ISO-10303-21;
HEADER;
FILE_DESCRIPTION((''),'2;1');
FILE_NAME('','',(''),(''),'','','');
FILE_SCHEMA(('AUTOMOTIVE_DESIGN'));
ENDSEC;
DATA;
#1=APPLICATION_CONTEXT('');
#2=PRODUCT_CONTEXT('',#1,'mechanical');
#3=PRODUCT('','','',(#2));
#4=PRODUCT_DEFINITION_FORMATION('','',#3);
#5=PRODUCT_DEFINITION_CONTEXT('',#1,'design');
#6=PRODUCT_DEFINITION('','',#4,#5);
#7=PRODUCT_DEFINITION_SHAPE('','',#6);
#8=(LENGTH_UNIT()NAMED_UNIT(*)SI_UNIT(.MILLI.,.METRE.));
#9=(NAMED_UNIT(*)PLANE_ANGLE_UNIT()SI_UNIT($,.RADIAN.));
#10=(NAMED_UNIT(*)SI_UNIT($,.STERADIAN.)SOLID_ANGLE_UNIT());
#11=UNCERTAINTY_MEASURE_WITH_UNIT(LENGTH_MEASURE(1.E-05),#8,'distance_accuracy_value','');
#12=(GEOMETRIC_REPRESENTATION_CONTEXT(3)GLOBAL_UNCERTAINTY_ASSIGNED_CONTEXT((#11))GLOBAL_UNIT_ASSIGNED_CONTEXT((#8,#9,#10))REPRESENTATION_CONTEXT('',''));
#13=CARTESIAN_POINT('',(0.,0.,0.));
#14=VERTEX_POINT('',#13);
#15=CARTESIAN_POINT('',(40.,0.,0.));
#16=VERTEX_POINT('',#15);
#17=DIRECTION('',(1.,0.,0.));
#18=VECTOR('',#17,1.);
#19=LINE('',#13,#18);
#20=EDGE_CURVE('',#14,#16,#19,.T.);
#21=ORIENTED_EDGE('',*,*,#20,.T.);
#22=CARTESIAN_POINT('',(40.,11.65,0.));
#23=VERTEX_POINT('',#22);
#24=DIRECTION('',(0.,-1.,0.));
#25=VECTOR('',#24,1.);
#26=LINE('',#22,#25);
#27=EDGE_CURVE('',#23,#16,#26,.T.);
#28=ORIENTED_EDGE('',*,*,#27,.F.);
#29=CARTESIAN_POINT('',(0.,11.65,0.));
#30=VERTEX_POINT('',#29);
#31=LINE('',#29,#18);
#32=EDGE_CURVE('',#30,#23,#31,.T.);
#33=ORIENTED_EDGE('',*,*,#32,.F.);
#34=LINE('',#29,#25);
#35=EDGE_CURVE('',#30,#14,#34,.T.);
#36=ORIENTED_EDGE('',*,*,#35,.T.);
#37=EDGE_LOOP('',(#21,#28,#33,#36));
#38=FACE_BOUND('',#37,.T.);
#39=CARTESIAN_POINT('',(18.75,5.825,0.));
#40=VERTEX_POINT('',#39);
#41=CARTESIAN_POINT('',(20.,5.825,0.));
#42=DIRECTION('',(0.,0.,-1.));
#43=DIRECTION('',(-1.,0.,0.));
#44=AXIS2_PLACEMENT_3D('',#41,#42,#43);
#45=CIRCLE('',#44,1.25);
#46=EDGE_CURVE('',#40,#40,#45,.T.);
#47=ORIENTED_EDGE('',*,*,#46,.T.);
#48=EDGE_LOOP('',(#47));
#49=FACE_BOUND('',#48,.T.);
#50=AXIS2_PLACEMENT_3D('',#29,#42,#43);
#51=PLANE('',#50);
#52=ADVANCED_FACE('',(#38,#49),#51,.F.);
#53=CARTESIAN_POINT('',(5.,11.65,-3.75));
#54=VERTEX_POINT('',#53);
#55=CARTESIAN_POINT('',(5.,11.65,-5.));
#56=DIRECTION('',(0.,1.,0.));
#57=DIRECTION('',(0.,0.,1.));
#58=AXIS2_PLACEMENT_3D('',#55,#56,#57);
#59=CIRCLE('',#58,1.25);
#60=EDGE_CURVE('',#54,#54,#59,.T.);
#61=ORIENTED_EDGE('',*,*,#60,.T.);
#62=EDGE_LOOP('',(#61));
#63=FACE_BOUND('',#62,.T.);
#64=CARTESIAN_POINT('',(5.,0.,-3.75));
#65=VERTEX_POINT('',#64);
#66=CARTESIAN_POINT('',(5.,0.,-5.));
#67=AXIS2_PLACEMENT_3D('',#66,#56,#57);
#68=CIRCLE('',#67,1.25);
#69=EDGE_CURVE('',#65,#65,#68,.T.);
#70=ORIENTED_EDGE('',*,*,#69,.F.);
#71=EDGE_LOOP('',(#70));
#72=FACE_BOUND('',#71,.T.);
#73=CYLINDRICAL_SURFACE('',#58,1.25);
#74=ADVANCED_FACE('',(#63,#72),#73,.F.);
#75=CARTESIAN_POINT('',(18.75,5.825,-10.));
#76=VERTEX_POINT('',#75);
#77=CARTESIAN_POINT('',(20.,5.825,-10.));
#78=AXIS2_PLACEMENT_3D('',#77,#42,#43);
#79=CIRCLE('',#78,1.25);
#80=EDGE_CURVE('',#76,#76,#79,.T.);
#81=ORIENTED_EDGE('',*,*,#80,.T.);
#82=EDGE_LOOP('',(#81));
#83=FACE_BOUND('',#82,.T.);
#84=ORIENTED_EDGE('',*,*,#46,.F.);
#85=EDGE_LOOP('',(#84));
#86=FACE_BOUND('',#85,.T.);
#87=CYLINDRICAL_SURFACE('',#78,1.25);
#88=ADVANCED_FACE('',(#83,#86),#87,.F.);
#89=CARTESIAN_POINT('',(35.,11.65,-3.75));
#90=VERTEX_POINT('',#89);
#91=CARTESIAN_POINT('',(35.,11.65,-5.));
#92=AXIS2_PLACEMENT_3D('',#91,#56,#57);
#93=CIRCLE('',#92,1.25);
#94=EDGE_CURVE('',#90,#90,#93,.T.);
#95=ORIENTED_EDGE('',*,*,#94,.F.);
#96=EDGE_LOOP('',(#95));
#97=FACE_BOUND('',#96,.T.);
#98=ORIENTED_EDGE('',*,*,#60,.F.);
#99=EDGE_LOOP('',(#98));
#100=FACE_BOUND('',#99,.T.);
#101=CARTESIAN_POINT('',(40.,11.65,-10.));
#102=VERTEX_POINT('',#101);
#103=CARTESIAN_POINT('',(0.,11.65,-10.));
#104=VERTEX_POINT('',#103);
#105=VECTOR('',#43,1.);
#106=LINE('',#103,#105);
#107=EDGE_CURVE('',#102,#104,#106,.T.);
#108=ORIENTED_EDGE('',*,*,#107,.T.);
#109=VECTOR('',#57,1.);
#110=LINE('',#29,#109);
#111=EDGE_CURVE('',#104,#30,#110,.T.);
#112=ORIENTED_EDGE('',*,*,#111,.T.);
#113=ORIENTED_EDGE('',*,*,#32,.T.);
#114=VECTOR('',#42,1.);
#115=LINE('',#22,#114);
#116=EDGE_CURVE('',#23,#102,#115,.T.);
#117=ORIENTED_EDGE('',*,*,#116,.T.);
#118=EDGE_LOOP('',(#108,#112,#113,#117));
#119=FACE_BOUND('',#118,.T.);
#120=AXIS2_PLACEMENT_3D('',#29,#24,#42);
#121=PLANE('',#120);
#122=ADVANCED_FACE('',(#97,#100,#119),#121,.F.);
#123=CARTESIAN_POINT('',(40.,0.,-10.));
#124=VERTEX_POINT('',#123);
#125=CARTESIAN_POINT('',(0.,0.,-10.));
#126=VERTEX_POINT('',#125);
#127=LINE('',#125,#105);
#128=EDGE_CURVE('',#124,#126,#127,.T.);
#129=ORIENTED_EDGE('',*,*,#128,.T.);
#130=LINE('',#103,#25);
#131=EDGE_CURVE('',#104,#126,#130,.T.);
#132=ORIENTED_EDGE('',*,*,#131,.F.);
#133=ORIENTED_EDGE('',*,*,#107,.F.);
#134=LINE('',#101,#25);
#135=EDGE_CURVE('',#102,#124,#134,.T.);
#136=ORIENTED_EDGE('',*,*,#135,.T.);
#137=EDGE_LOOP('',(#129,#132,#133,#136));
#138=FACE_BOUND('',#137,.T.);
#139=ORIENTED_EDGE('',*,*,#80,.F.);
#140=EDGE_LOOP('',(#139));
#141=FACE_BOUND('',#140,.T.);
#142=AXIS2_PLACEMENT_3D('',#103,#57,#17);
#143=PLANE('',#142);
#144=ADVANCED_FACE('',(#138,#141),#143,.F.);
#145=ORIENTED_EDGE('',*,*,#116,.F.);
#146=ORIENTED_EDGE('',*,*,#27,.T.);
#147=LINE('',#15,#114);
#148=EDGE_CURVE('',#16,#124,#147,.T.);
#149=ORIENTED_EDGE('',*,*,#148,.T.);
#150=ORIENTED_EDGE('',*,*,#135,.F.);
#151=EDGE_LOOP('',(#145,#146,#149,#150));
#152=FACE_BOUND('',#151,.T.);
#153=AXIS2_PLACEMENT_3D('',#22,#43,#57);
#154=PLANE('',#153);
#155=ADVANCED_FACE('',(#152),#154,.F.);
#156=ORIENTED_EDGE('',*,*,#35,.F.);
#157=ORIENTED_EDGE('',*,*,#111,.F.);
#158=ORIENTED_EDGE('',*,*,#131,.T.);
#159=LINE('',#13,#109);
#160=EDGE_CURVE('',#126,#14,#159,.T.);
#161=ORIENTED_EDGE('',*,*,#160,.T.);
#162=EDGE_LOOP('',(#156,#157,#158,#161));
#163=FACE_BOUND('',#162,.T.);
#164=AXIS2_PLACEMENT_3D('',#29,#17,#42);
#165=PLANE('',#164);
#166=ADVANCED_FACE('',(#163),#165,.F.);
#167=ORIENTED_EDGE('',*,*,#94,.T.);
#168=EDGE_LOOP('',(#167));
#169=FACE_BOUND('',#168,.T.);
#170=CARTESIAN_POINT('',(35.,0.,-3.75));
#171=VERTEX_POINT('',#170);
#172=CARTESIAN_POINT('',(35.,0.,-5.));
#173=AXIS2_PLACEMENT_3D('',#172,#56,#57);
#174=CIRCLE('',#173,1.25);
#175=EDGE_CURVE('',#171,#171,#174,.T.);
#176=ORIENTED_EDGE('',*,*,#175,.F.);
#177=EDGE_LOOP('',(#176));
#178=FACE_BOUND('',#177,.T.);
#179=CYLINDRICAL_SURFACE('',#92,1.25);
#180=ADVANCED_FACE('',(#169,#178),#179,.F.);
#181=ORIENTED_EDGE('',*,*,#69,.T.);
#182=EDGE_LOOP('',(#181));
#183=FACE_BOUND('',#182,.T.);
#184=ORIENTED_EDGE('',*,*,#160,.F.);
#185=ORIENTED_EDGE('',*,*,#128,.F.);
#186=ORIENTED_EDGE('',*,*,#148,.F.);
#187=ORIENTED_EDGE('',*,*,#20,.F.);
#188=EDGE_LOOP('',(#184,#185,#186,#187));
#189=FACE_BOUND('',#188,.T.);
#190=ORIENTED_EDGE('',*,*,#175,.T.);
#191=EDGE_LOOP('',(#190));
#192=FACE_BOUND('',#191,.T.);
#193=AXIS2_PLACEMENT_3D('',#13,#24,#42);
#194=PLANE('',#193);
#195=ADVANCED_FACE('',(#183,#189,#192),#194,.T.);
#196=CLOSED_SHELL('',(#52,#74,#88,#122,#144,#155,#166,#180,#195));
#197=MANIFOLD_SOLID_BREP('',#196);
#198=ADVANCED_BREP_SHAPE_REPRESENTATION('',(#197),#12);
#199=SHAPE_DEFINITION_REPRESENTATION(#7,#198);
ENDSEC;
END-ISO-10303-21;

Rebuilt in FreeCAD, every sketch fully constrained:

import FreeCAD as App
import Part
import Sketcher
from FreeCAD import Vector
Q = App.Units.Quantity

doc = App.newDocument("Part")
params = doc.addObject("Spreadsheet::Sheet", "Params")
for row, (alias, value) in enumerate([
    ("sketch1_width", "40 mm"),
    ("sketch1_height", "10 mm"),
    ("pad1_length", "11.65 mm"),
    ("sketch2_diameter", "2.5 mm"),
    ("hole_diameter", "2.5 mm"),
    ("sketch3_diameter", "2.5 mm"),
    ("hole2_diameter", "2.5 mm"),
], start=1):
    params.set(f"A{row}", alias)
    params.set(f"B{row}", "=" + value)
    params.setAlias(f"B{row}", alias)

body = doc.addObject("PartDesign::Body", "Body")

# Sketch on XZ plane
sketch1 = doc.addObject("Sketcher::SketchObject", "Sketch")
body.addObject(sketch1)
sketch1.AttachmentSupport = (doc.XZ_Plane, [""])
sketch1.MapMode = "FlatFace"
sketch1.addGeometry([
    Part.LineSegment(Vector(0, -10, 0), Vector(0, 0, 0)),
    Part.LineSegment(Vector(0, 0, 0), Vector(40, 0, 0)),
    Part.LineSegment(Vector(40, 0, 0), Vector(40, -10, 0)),
    Part.LineSegment(Vector(40, -10, 0), Vector(0, -10, 0)),
], False)
sketch1.addConstraint([
    Sketcher.Constraint("Coincident", 0, 2, 1, 1),
    Sketcher.Constraint("Coincident", 1, 2, 2, 1),
    Sketcher.Constraint("Coincident", 2, 2, 3, 1),
    Sketcher.Constraint("Coincident", 3, 2, 0, 1),
    Sketcher.Constraint("Vertical", 0),
    Sketcher.Constraint("Horizontal", 1),
    Sketcher.Constraint("Vertical", 2),
    Sketcher.Constraint("Horizontal", 3),
    Sketcher.Constraint("Coincident", 0, 2, -1, 1),
    Sketcher.Constraint("DistanceX", 1, 1, 1, 2, Q("40 mm")),
    Sketcher.Constraint("DistanceY", 0, 1, 0, 2, Q("10 mm")),
])
sketch1.setExpression("Constraints[9]", "Params.sketch1_width")
sketch1.setExpression("Constraints[10]", "Params.sketch1_height")
pad1 = doc.addObject("PartDesign::Pad", "Pad")
body.addObject(pad1)
pad1.Profile = sketch1
pad1.setExpression("Length", "Params.pad1_length")
pad1.Reversed = True

# Sketch on XZ plane
sketch2 = doc.addObject("Sketcher::SketchObject", "Sketch001")
body.addObject(sketch2)
sketch2.AttachmentSupport = (doc.XZ_Plane, [""])
sketch2.MapMode = "FlatFace"
sketch2.AttachmentOffset = App.Placement(Vector(0, 0, -11.65), App.Rotation())
sketch2.addGeometry([
    Part.Circle(Vector(5, -5, 0), Vector(0, 0, 1), 1.2),
    Part.Circle(Vector(35, -5, 0), Vector(0, 0, 1), 1.2),
], False)
sketch2.addConstraint([
    Sketcher.Constraint("Equal", 0, 1),
    Sketcher.Constraint("Horizontal", 0, 3, 1, 3),
    Sketcher.Constraint("Diameter", 0, Q("2.5 mm")),
    Sketcher.Constraint("DistanceX", -1, 1, 0, 3, Q("5 mm")),
    Sketcher.Constraint("DistanceY", 0, 3, -1, 1, Q("5 mm")),
    Sketcher.Constraint("DistanceX", -1, 1, 1, 3, Q("35 mm")),
])
sketch2.setExpression("Constraints[2]", "Params.sketch2_diameter")
doc.recompute()
hole = doc.addObject("PartDesign::Hole", "Hole")
body.addObject(hole)
hole.Profile = sketch2
hole.ThreadType = "None"
hole.setExpression("Diameter", "Params.hole_diameter")
hole.DepthType = "ThroughAll"
hole.Reversed = True

# Sketch on XY plane
sketch3 = doc.addObject("Sketcher::SketchObject", "Sketch002")
body.addObject(sketch3)
sketch3.AttachmentSupport = (doc.XY_Plane, [""])
sketch3.MapMode = "FlatFace"
sketch3.AttachmentOffset = App.Placement(Vector(0, 0, -10), App.Rotation())
sketch3.addGeometry(Part.Circle(Vector(20, 5.8, 0), Vector(0, 0, 1), 1.2), False)
sketch3.addConstraint([
    Sketcher.Constraint("Diameter", 0, Q("2.5 mm")),
    Sketcher.Constraint("DistanceX", -1, 1, 0, 3, Q("20 mm")),
    Sketcher.Constraint("DistanceY", -1, 1, 0, 3, Q("5.825 mm")),
])
sketch3.setExpression("Constraints[0]", "Params.sketch3_diameter")
doc.recompute()
hole2 = doc.addObject("PartDesign::Hole", "Hole001")
body.addObject(hole2)
hole2.Profile = sketch3
hole2.ThreadType = "None"
hole2.setExpression("Diameter", "Params.hole2_diameter")
hole2.DepthType = "ThroughAll"
hole2.Reversed = True

doc.recompute()
